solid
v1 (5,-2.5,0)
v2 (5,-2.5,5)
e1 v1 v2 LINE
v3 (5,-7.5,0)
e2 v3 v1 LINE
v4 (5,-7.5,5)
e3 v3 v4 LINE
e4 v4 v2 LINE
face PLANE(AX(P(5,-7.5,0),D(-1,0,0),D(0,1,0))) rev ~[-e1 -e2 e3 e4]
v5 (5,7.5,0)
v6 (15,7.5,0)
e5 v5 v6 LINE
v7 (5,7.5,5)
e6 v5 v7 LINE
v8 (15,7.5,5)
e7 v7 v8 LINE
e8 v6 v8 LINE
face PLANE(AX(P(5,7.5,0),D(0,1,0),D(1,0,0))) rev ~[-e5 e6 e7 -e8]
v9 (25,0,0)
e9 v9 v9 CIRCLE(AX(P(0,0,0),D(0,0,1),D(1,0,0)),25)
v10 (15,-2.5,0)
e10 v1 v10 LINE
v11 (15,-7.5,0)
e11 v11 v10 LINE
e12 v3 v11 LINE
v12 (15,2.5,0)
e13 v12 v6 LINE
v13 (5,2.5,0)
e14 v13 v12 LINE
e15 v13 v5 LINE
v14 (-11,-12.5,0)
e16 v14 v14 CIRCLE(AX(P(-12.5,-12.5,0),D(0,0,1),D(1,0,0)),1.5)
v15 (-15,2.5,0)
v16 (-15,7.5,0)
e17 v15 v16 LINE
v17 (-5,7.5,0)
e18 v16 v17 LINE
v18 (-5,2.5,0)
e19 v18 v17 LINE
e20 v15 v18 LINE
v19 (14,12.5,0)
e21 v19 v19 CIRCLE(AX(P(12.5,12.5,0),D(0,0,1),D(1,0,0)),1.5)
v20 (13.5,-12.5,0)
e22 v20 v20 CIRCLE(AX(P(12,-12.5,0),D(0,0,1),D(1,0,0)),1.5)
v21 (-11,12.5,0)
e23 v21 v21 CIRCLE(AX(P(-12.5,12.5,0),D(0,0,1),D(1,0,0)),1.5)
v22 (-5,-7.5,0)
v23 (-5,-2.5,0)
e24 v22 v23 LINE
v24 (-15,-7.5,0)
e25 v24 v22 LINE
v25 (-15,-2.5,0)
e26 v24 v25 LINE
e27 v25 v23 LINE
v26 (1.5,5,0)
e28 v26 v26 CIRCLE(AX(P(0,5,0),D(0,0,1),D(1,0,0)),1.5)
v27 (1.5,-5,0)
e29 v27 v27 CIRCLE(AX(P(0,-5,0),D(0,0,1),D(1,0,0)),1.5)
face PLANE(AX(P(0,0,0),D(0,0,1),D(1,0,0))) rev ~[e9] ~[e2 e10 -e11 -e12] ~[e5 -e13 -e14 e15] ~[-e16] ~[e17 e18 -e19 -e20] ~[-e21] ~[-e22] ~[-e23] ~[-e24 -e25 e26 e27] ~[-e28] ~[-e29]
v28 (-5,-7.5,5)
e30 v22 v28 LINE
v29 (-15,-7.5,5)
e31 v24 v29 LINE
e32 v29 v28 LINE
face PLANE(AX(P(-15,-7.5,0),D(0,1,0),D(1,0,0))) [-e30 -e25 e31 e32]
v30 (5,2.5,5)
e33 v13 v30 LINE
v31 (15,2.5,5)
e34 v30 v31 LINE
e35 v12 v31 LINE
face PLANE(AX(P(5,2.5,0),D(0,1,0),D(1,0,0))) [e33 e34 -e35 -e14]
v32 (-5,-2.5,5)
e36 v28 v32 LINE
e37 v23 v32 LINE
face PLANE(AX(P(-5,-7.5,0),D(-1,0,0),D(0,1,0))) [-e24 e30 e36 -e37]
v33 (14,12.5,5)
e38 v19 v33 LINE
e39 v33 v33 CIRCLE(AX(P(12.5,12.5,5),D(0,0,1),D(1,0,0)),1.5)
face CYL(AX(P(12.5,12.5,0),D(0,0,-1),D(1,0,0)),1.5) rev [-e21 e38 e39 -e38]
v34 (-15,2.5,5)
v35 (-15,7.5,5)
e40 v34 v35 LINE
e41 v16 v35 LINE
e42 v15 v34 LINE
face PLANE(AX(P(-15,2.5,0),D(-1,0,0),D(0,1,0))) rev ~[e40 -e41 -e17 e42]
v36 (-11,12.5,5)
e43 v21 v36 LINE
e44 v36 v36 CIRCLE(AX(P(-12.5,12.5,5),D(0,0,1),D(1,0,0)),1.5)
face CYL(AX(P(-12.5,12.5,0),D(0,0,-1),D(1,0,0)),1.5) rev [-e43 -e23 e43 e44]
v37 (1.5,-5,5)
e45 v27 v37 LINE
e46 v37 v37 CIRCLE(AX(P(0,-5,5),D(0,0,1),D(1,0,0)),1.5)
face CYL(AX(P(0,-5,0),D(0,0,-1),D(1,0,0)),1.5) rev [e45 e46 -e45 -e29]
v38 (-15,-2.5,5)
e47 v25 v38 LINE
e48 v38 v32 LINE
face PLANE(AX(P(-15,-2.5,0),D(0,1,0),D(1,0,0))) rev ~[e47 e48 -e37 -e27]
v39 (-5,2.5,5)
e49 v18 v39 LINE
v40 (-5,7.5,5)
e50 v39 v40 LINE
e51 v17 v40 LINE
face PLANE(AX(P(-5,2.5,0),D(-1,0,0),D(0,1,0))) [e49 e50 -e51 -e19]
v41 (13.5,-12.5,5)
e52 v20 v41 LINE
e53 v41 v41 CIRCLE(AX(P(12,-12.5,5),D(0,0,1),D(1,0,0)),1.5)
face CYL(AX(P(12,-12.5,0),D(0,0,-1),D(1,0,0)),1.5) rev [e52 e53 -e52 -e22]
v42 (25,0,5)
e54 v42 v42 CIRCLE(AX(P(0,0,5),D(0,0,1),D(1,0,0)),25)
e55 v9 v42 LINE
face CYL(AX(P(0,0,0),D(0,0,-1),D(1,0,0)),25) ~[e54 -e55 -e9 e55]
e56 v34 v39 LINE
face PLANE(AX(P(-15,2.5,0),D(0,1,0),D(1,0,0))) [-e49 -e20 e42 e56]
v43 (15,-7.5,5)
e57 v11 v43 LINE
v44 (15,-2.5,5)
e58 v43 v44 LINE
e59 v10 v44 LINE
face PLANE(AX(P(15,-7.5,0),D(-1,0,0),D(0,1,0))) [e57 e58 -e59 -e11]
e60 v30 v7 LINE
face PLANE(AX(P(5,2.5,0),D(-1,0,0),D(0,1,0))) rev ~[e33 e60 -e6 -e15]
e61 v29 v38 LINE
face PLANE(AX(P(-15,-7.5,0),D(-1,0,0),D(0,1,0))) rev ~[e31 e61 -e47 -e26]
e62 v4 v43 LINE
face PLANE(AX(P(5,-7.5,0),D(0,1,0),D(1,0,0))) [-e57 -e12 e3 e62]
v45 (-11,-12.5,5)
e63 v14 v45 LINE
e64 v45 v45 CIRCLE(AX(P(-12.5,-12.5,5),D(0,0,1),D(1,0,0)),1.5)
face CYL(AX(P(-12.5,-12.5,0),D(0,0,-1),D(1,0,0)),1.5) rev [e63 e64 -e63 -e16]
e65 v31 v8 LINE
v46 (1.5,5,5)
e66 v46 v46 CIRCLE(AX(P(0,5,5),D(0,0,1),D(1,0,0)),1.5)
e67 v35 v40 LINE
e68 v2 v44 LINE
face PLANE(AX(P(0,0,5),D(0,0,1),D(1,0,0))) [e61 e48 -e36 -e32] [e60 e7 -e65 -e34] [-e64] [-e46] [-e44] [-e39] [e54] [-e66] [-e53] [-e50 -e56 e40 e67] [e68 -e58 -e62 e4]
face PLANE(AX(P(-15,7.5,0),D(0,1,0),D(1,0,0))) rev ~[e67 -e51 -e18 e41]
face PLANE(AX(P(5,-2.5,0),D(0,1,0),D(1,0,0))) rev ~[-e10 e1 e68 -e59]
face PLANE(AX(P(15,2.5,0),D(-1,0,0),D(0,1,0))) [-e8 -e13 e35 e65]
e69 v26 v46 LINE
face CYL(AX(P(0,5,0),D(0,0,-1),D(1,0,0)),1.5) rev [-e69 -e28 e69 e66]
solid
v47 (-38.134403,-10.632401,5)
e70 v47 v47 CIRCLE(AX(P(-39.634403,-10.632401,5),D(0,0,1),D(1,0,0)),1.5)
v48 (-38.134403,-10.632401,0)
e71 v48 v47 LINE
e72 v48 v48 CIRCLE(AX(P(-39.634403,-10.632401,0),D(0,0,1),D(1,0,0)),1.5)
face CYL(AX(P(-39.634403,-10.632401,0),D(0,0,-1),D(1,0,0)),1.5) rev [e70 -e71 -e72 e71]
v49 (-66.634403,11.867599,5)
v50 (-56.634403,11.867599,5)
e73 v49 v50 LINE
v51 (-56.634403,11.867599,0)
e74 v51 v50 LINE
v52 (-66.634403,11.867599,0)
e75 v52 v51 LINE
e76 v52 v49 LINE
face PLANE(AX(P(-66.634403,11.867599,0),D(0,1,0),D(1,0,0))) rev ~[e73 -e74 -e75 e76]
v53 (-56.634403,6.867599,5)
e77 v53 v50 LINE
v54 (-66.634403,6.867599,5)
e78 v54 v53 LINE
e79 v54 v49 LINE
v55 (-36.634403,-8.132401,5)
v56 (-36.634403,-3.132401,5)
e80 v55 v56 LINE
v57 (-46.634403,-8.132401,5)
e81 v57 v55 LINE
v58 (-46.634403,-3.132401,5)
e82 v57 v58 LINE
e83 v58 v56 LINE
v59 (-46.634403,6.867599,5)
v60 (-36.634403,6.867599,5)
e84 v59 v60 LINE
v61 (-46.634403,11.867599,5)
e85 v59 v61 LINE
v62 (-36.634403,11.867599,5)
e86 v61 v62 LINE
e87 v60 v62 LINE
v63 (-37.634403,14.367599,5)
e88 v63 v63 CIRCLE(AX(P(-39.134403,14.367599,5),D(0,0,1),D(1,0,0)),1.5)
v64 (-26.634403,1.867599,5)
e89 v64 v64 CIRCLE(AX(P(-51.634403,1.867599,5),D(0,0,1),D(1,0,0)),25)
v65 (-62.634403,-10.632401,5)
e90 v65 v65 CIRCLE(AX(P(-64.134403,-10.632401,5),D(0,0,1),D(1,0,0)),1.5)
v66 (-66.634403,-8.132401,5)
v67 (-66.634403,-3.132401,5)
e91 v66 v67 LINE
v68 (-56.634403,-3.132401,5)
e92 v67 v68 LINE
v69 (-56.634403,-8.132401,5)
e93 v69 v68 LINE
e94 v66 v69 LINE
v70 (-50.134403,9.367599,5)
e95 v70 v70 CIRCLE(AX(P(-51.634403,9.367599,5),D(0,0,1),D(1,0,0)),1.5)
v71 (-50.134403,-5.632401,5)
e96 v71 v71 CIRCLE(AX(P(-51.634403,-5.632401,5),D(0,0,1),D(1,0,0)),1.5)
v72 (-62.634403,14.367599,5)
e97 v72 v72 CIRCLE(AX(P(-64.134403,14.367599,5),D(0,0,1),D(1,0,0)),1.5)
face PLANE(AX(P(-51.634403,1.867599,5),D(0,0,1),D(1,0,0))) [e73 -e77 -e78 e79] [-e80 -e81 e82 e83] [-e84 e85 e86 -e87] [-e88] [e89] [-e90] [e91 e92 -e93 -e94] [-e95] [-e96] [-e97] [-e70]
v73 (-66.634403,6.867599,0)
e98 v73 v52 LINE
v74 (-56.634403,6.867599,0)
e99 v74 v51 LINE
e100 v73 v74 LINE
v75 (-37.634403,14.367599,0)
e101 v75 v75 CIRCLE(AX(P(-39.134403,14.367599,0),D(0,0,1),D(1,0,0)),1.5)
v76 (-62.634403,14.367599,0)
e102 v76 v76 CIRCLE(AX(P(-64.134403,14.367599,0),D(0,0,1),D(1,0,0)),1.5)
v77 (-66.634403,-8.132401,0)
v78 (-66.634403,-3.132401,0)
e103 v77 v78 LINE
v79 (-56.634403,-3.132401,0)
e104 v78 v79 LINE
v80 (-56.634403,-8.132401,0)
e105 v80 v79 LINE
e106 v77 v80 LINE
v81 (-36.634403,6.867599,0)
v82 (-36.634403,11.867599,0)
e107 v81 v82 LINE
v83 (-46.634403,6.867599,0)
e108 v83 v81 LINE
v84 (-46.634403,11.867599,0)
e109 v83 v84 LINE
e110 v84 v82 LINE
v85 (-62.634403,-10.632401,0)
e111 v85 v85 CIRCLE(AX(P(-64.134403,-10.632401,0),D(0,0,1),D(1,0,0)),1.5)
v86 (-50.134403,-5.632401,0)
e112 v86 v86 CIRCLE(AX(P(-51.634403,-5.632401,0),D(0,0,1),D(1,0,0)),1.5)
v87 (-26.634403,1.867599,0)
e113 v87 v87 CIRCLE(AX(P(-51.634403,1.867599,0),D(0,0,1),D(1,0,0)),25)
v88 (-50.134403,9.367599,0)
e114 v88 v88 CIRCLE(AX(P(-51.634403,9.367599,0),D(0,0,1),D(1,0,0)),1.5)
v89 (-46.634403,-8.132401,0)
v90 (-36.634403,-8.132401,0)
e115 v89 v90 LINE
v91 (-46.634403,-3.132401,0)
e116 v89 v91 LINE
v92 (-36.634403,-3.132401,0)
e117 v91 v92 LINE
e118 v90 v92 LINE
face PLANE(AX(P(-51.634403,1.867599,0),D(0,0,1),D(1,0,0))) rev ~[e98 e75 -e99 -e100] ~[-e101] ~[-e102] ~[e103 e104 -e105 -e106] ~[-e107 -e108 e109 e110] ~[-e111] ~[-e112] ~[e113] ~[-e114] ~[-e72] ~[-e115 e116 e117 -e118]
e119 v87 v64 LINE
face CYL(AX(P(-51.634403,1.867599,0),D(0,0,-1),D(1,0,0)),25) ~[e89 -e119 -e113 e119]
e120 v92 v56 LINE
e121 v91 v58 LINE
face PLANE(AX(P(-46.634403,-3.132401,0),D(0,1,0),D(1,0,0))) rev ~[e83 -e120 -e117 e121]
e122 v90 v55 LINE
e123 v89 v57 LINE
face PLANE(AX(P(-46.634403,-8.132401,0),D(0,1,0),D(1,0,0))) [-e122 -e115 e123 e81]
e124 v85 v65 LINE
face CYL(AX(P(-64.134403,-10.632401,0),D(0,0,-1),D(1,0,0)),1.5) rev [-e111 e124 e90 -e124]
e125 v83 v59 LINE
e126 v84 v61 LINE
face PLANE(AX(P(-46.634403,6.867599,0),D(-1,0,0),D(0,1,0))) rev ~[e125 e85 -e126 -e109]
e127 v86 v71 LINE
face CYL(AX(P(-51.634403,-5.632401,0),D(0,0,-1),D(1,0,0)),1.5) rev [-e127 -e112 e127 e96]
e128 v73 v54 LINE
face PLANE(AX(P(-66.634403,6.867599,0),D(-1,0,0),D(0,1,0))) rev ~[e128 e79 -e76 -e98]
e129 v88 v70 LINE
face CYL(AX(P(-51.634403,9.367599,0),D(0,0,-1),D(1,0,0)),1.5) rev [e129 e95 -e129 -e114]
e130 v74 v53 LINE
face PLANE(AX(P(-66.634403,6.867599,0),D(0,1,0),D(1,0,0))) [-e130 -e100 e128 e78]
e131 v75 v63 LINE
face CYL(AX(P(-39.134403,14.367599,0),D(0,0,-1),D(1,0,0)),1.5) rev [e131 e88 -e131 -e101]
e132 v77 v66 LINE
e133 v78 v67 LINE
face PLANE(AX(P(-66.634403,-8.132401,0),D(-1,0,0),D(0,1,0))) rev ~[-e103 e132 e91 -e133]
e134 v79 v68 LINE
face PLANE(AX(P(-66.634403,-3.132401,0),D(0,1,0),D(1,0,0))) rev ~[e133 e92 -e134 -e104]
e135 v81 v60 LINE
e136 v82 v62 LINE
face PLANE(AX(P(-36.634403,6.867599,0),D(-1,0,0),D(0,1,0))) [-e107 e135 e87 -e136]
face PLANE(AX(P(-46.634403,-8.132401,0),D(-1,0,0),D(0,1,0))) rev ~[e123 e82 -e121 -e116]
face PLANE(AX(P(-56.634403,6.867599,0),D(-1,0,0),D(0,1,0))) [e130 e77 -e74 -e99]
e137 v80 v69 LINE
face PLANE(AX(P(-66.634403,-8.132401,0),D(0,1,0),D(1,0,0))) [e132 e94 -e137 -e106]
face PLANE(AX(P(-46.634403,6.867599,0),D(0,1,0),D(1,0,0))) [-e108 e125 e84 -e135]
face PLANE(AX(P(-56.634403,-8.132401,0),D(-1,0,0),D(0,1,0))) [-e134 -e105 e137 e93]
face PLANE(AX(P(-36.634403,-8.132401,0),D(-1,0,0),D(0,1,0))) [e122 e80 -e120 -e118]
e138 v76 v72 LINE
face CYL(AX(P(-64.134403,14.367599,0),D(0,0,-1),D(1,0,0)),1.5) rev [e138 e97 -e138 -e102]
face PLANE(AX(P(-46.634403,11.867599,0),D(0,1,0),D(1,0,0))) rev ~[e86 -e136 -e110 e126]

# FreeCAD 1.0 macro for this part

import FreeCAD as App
import Part
import Sketcher
Q = App.Units.Quantity

doc = App.newDocument("Part")
body = doc.addObject("PartDesign::Body", "Body")

sketch1 = body.newObject("Sketcher::SketchObject", "Sketch")
sketch1.AttachmentSupport = (doc.getObject("XY_Plane"), [""])
sketch1.MapMode = "FlatFace"
sketch1.addGeometry([
    Part.Circle(App.Vector(0, 0, 0), App.Vector(0, 0, 1), 25),
    Part.Circle(App.Vector(-12.5, -12.5, 0), App.Vector(0, 0, 1), 1.5),
    Part.LineSegment(App.Vector(-5, -7.5, 0), App.Vector(-15, -7.5, 0)),
    Part.LineSegment(App.Vector(-15, -7.5, 0), App.Vector(-15, -2.5, 0)),
    Part.LineSegment(App.Vector(-15, -2.5, 0), App.Vector(-5, -2.5, 0)),
    Part.LineSegment(App.Vector(-5, -2.5, 0), App.Vector(-5, -7.5, 0)),
    Part.Circle(App.Vector(12, -12.5, 0), App.Vector(0, 0, 1), 1.5),
    Part.Circle(App.Vector(0, -5, 0), App.Vector(0, 0, 1), 1.5),
    Part.LineSegment(App.Vector(15, -7.5, 0), App.Vector(5, -7.5, 0)),
    Part.LineSegment(App.Vector(5, -7.5, 0), App.Vector(5, -2.5, 0)),
    Part.LineSegment(App.Vector(5, -2.5, 0), App.Vector(15, -2.5, 0)),
    Part.LineSegment(App.Vector(15, -2.5, 0), App.Vector(15, -7.5, 0)),
    Part.LineSegment(App.Vector(-5, 2.5, 0), App.Vector(-15, 2.5, 0)),
    Part.LineSegment(App.Vector(-15, 2.5, 0), App.Vector(-15, 7.5, 0)),
    Part.LineSegment(App.Vector(-15, 7.5, 0), App.Vector(-5, 7.5, 0)),
    Part.LineSegment(App.Vector(-5, 7.5, 0), App.Vector(-5, 2.5, 0)),
    Part.Circle(App.Vector(-12.5, 12.5, 0), App.Vector(0, 0, 1), 1.5),
    Part.Circle(App.Vector(0, 5, 0), App.Vector(0, 0, 1), 1.5),
    Part.LineSegment(App.Vector(15, 2.5, 0), App.Vector(5, 2.5, 0)),
    Part.LineSegment(App.Vector(5, 2.5, 0), App.Vector(5, 7.5, 0)),
    Part.LineSegment(App.Vector(5, 7.5, 0), App.Vector(15, 7.5, 0)),
    Part.LineSegment(App.Vector(15, 7.5, 0), App.Vector(15, 2.5, 0)),
    Part.Circle(App.Vector(12.5, 12.5, 0), App.Vector(0, 0, 1), 1.5),
], False)
sketch1.addConstraint([
    Sketcher.Constraint("Coincident", 2, 2, 3, 1),
    Sketcher.Constraint("Coincident", 3, 2, 4, 1),
    Sketcher.Constraint("Coincident", 4, 2, 5, 1),
    Sketcher.Constraint("Coincident", 5, 2, 2, 1),
    Sketcher.Constraint("Coincident", 8, 2, 9, 1),
    Sketcher.Constraint("Coincident", 9, 2, 10, 1),
    Sketcher.Constraint("Coincident", 10, 2, 11, 1),
    Sketcher.Constraint("Coincident", 11, 2, 8, 1),
    Sketcher.Constraint("Coincident", 12, 2, 13, 1),
    Sketcher.Constraint("Coincident", 13, 2, 14, 1),
    Sketcher.Constraint("Coincident", 14, 2, 15, 1),
    Sketcher.Constraint("Coincident", 15, 2, 12, 1),
    Sketcher.Constraint("Coincident", 18, 2, 19, 1),
    Sketcher.Constraint("Coincident", 19, 2, 20, 1),
    Sketcher.Constraint("Coincident", 20, 2, 21, 1),
    Sketcher.Constraint("Coincident", 21, 2, 18, 1),
    Sketcher.Constraint("Horizontal", 2),
    Sketcher.Constraint("Vertical", 3),
    Sketcher.Constraint("Horizontal", 4),
    Sketcher.Constraint("Vertical", 5),
    Sketcher.Constraint("Horizontal", 8),
    Sketcher.Constraint("Vertical", 9),
    Sketcher.Constraint("Horizontal", 10),
    Sketcher.Constraint("Vertical", 11),
    Sketcher.Constraint("Horizontal", 12),
    Sketcher.Constraint("Vertical", 13),
    Sketcher.Constraint("Horizontal", 14),
    Sketcher.Constraint("Vertical", 15),
    Sketcher.Constraint("Horizontal", 18),
    Sketcher.Constraint("Vertical", 19),
    Sketcher.Constraint("Horizontal", 20),
    Sketcher.Constraint("Vertical", 21),
    Sketcher.Constraint("Coincident", 0, 3, -1, 1),
    Sketcher.Constraint("Equal", 1, 6),
    Sketcher.Constraint("Equal", 6, 7),
    Sketcher.Constraint("Equal", 7, 16),
    Sketcher.Constraint("Equal", 16, 17),
    Sketcher.Constraint("Equal", 17, 22),
    Sketcher.Constraint("Symmetric", 7, 3, 17, 3, -1, 1),
    Sketcher.Constraint("Symmetric", 1, 3, 22, 3, -1, 1),
    Sketcher.Constraint("Symmetric", 10, 2, 12, 2, -1, 1),
    Sketcher.Constraint("Symmetric", 8, 2, 14, 2, -1, 1),
    Sketcher.Constraint("Symmetric", 4, 2, 18, 2, -1, 1),
    Sketcher.Constraint("Symmetric", 2, 2, 20, 2, -1, 1),
    Sketcher.Constraint("Symmetric", 16, 3, 22, 3, -2),
    Sketcher.Constraint("Symmetric", 5, 2, 8, 2, -2),
    Sketcher.Constraint("Symmetric", 3, 2, 10, 2, -2),
    Sketcher.Constraint("PointOnObject", 7, 3, -2),
    Sketcher.Constraint("Horizontal", 1, 3, 6, 3),
    Sketcher.Constraint("Diameter", 0, Q("50 mm")),
    Sketcher.Constraint("Diameter", 1, Q("3 mm")),
    Sketcher.Constraint("DistanceX", 2, 2, 2, 1, Q("10 mm")),
    Sketcher.Constraint("DistanceY", 3, 1, 3, 2, Q("5 mm")),
    Sketcher.Constraint("DistanceX", -1, 1, 6, 3, Q("12 mm")),
    Sketcher.Constraint("DistanceY", 7, 3, -1, 1, Q("5 mm")),
    Sketcher.Constraint("DistanceX", 2, 2, -1, 1, Q("15 mm")),
    Sketcher.Constraint("DistanceY", 1, 3, 16, 3, Q("25 mm")),
    Sketcher.Constraint("DistanceX", 16, 3, 22, 3, Q("25 mm")),
    Sketcher.Constraint("DistanceY", 1, 3, 2, 2, Q("5 mm")),
])
pad1 = body.newObject("PartDesign::Pad", "Pad")
pad1.Profile = sketch1
pad1.Length = 5
body2 = doc.addObject("PartDesign::Body", "Body001")

sketch2 = body2.newObject("Sketcher::SketchObject", "Sketch001")
sketch2.AttachmentSupport = (doc.getObject("XY_Plane001"), [""])
sketch2.MapMode = "FlatFace"
sketch2.addGeometry([
    Part.Circle(App.Vector(-51.6, 1.9, 0), App.Vector(0, 0, 1), 25),
    Part.Circle(App.Vector(-64.1, -10.6, 0), App.Vector(0, 0, 1), 1.5),
    Part.LineSegment(App.Vector(-56.6, -8.1, 0), App.Vector(-66.6, -8.1, 0)),
    Part.LineSegment(App.Vector(-66.6, -8.1, 0), App.Vector(-66.6, -3.1, 0)),
    Part.LineSegment(App.Vector(-66.6, -3.1, 0), App.Vector(-56.6, -3.1, 0)),
    Part.LineSegment(App.Vector(-56.6, -3.1, 0), App.Vector(-56.6, -8.1, 0)),
    Part.Circle(App.Vector(-51.6, -5.6, 0), App.Vector(0, 0, 1), 1.5),
    Part.Circle(App.Vector(-39.6, -10.6, 0), App.Vector(0, 0, 1), 1.5),
    Part.LineSegment(App.Vector(-36.6, -8.1, 0), App.Vector(-46.6, -8.1, 0)),
    Part.LineSegment(App.Vector(-46.6, -8.1, 0), App.Vector(-46.6, -3.1, 0)),
    Part.LineSegment(App.Vector(-46.6, -3.1, 0), App.Vector(-36.6, -3.1, 0)),
    Part.LineSegment(App.Vector(-36.6, -3.1, 0), App.Vector(-36.6, -8.1, 0)),
    Part.LineSegment(App.Vector(-56.6, 6.9, 0), App.Vector(-66.6, 6.9, 0)),
    Part.LineSegment(App.Vector(-66.6, 6.9, 0), App.Vector(-66.6, 11.9, 0)),
    Part.LineSegment(App.Vector(-66.6, 11.9, 0), App.Vector(-56.6, 11.9, 0)),
    Part.LineSegment(App.Vector(-56.6, 11.9, 0), App.Vector(-56.6, 6.9, 0)),
    Part.Circle(App.Vector(-64.1, 14.4, 0), App.Vector(0, 0, 1), 1.5),
    Part.Circle(App.Vector(-51.6, 9.4, 0), App.Vector(0, 0, 1), 1.5),
    Part.LineSegment(App.Vector(-36.6, 6.9, 0), App.Vector(-46.6, 6.9, 0)),
    Part.LineSegment(App.Vector(-46.6, 6.9, 0), App.Vector(-46.6, 11.9, 0)),
    Part.LineSegment(App.Vector(-46.6, 11.9, 0), App.Vector(-36.6, 11.9, 0)),
    Part.LineSegment(App.Vector(-36.6, 11.9, 0), App.Vector(-36.6, 6.9, 0)),
    Part.Circle(App.Vector(-39.1, 14.4, 0), App.Vector(0, 0, 1), 1.5),
], False)
sketch2.addConstraint([
    Sketcher.Constraint("Coincident", 2, 2, 3, 1),
    Sketcher.Constraint("Coincident", 3, 2, 4, 1),
    Sketcher.Constraint("Coincident", 4, 2, 5, 1),
    Sketcher.Constraint("Coincident", 5, 2, 2, 1),
    Sketcher.Constraint("Coincident", 8, 2, 9, 1),
    Sketcher.Constraint("Coincident", 9, 2, 10, 1),
    Sketcher.Constraint("Coincident", 10, 2, 11, 1),
    Sketcher.Constraint("Coincident", 11, 2, 8, 1),
    Sketcher.Constraint("Coincident", 12, 2, 13, 1),
    Sketcher.Constraint("Coincident", 13, 2, 14, 1),
    Sketcher.Constraint("Coincident", 14, 2, 15, 1),
    Sketcher.Constraint("Coincident", 15, 2, 12, 1),
    Sketcher.Constraint("Coincident", 18, 2, 19, 1),
    Sketcher.Constraint("Coincident", 19, 2, 20, 1),
    Sketcher.Constraint("Coincident", 20, 2, 21, 1),
    Sketcher.Constraint("Coincident", 21, 2, 18, 1),
    Sketcher.Constraint("Horizontal", 2),
    Sketcher.Constraint("Vertical", 3),
    Sketcher.Constraint("Horizontal", 4),
    Sketcher.Constraint("Vertical", 5),
    Sketcher.Constraint("Horizontal", 8),
    Sketcher.Constraint("Vertical", 9),
    Sketcher.Constraint("Horizontal", 10),
    Sketcher.Constraint("Vertical", 11),
    Sketcher.Constraint("Horizontal", 12),
    Sketcher.Constraint("Vertical", 13),
    Sketcher.Constraint("Horizontal", 14),
    Sketcher.Constraint("Vertical", 15),
    Sketcher.Constraint("Horizontal", 18),
    Sketcher.Constraint("Vertical", 19),
    Sketcher.Constraint("Horizontal", 20),
    Sketcher.Constraint("Vertical", 21),
    Sketcher.Constraint("Equal", 1, 6),
    Sketcher.Constraint("Equal", 6, 7),
    Sketcher.Constraint("Equal", 7, 16),
    Sketcher.Constraint("Equal", 16, 17),
    Sketcher.Constraint("Equal", 17, 22),
    Sketcher.Constraint("Horizontal", 1, 3, 7, 3),
    Sketcher.Constraint("Horizontal", 16, 3, 22, 3),
    Sketcher.Constraint("Horizontal", 5, 2, 8, 2),
    Sketcher.Constraint("Horizontal", 4, 2, 9, 2),
    Sketcher.Constraint("Horizontal", 15, 2, 18, 2),
    Sketcher.Constraint("Horizontal", 14, 2, 19, 2),
    Sketcher.Constraint("Vertical", 0, 3, 6, 3),
    Sketcher.Constraint("Vertical", 1, 3, 16, 3),
    Sketcher.Constraint("Vertical", 6, 3, 17, 3),
    Sketcher.Constraint("Vertical", 3, 2, 12, 2),
    Sketcher.Constraint("Vertical", 5, 2, 14, 2),
    Sketcher.Constraint("Vertical", 9, 2, 18, 2),
    Sketcher.Constraint("Vertical", 11, 2, 20, 2),
    Sketcher.Constraint("Equal", 4, 8),
    Sketcher.Constraint("Equal", 11, 13),
    Sketcher.Constraint("Diameter", 0, Q("50 mm")),
    Sketcher.Constraint("Diameter", 1, Q("3 mm")),
    Sketcher.Constraint("DistanceX", 2, 2, 2, 1, Q("10 mm")),
    Sketcher.Constraint("DistanceY", 3, 1, 3, 2, Q("5 mm")),
    Sketcher.Constraint("DistanceY", 1, 3, 6, 3, Q("5 mm")),
    Sketcher.Constraint("DistanceX", 6, 3, 7, 3, Q("12 mm")),
    Sketcher.Constraint("DistanceY", 6, 3, 16, 3, Q("20 mm")),
    Sketcher.Constraint("DistanceY", 17, 3, 16, 3, Q("5 mm")),
    Sketcher.Constraint("DistanceX", 16, 3, 22, 3, Q("25 mm")),
    Sketcher.Constraint("DistanceX", 2, 2, 6, 3, Q("15 mm")),
    Sketcher.Constraint("DistanceY", 2, 2, 0, 3, Q("10 mm")),
    Sketcher.Constraint("DistanceX", 6, 3, 8, 2, Q("5 mm")),
    Sketcher.Constraint("DistanceY", 3, 2, 12, 2, Q("10 mm")),
    Sketcher.Constraint("DistanceX", 1, 3, 0, 3, Q("12.5 mm")),
    Sketcher.Constraint("DistanceY", 1, 3, 0, 3, Q("12.5 mm")),
    Sketcher.Constraint("DistanceY", -1, 1, 0, 3, Q("1.867599 mm")),
    Sketcher.Constraint("DistanceX", 0, 3, -1, 1, Q("51.634403 mm")),
])
pad2 = body2.newObject("PartDesign::Pad", "Pad001")
pad2.Profile = sketch2
pad2.Length = 5

doc.recompute()
